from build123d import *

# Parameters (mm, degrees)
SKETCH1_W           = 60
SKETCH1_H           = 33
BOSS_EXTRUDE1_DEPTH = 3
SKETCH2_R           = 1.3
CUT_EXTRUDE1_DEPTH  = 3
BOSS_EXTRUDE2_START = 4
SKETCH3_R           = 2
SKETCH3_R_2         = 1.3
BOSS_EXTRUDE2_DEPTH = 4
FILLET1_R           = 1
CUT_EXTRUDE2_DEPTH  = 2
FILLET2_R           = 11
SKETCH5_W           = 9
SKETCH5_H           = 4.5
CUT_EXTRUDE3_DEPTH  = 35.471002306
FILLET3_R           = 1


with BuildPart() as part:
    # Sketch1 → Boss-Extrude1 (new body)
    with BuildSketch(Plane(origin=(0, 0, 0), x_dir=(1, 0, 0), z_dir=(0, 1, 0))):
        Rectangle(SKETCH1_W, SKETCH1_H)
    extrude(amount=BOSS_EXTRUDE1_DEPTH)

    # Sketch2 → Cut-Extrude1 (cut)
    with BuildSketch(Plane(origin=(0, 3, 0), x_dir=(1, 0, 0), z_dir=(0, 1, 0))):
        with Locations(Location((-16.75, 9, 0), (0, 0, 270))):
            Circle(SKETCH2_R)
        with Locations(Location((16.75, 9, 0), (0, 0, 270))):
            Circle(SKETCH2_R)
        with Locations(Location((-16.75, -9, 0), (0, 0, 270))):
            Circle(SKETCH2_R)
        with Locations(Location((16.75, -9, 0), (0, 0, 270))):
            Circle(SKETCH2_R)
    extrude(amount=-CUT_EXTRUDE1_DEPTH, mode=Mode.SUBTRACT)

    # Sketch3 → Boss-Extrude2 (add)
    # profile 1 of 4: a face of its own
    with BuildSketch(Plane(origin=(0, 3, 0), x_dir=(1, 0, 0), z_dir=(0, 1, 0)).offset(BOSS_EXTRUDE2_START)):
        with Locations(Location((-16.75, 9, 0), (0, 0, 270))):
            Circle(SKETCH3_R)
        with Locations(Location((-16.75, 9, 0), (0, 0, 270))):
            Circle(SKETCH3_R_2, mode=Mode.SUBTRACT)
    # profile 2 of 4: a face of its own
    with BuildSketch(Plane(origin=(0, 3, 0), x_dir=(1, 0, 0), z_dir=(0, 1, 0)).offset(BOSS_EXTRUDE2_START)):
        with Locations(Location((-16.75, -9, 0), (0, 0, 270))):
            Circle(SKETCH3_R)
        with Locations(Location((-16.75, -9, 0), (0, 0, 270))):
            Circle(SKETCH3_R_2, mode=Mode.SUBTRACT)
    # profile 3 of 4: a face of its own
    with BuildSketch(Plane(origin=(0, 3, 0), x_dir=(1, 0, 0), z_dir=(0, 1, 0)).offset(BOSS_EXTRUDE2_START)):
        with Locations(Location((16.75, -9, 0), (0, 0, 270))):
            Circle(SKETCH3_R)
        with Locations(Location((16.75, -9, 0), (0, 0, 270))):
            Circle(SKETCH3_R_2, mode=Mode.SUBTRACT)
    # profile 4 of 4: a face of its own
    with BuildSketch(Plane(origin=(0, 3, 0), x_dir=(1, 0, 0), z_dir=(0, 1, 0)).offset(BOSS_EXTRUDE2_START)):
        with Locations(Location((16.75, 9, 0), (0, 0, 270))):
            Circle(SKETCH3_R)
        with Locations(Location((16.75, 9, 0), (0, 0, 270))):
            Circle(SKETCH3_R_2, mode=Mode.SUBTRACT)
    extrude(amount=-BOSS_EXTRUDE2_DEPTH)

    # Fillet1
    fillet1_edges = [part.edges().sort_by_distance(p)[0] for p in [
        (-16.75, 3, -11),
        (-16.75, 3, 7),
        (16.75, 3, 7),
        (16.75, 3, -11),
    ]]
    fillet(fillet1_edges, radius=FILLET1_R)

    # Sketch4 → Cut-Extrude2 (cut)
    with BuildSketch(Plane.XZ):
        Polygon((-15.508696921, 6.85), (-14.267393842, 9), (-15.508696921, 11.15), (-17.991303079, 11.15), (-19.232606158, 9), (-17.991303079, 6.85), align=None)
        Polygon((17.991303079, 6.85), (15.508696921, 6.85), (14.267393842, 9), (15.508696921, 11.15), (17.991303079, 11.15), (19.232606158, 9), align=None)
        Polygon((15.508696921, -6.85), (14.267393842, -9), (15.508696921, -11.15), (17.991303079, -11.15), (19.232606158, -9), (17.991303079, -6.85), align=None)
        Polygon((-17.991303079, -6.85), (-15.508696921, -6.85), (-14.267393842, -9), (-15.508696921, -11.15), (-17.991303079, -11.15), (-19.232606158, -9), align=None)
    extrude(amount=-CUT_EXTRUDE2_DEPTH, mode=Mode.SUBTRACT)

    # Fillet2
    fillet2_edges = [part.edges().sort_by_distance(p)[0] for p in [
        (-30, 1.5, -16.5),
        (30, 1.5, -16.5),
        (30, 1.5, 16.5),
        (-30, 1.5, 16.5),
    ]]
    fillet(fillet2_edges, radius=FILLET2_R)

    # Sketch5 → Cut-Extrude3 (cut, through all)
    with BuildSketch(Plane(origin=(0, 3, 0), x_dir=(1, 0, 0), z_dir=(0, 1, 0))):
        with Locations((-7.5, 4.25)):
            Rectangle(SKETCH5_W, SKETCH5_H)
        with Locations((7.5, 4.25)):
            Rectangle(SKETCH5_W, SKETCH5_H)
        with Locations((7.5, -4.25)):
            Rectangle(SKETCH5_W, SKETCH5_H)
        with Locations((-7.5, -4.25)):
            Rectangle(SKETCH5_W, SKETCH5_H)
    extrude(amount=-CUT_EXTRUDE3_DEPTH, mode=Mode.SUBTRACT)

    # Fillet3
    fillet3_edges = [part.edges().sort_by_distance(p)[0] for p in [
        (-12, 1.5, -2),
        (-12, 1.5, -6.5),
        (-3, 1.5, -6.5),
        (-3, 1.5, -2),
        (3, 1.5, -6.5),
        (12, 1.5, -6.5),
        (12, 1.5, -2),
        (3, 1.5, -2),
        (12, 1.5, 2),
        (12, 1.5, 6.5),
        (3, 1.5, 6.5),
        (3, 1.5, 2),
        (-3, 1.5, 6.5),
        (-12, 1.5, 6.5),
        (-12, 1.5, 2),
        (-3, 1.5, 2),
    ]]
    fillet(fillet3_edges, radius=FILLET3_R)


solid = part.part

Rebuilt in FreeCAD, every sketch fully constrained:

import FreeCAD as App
import Part
import Sketcher

V = App.Vector
Q = App.Units.Quantity


def edges_at(feature, points):
    """Names of the edges that pass closest to the given points."""
    edges = feature.Shape.Edges
    near = lambda p: min(range(len(edges)), key=lambda i: edges[i].distToShape(Part.Vertex(*p))[0])
    return sorted({f"Edge{near(p) + 1}" for p in points})


def add_polygon(sketch, points):
    """Adds a closed chain of lines whose ends are joined by coincident constraints."""
    first, n = sketch.GeometryCount, len(points)
    for a, b in zip(points, points[1:] + points[:1]):
        sketch.addGeometry(Part.LineSegment(App.Vector(*a, 0), App.Vector(*b, 0)), False)
    for i in range(n):
        sketch.addConstraint(Sketcher.Constraint("Coincident", first + i, 2, first + (i + 1) % n, 1))

doc = App.newDocument("Part")
body = doc.addObject("PartDesign::Body", "Body")

sketch1 = body.newObject("Sketcher::SketchObject", "Sketch")
sketch1.AttachmentSupport = (doc.getObject("XZ_Plane"), [""])
sketch1.MapMode = "FlatFace"
add_polygon(sketch1, [(-30, -16), (-30, 16), (30, 16), (30, -16)])
sketch1.addConstraint([
    Sketcher.Constraint("Vertical", 0),
    Sketcher.Constraint("Horizontal", 1),
    Sketcher.Constraint("Vertical", 2),
    Sketcher.Constraint("Horizontal", 3),
    Sketcher.Constraint("Symmetric", 0, 2, 2, 2, -1, 1),
    Sketcher.Constraint("DistanceX", 1, 1, 1, 2, 60.0),
    Sketcher.Constraint("DistanceY", 0, 1, 0, 2, 33.0),
])
pad1 = body.newObject("PartDesign::Pad", "Pad")
pad1.Profile = sketch1
pad1.Length = 3
pad1.Reversed = True

sketch2 = body.newObject("Sketcher::SketchObject", "Sketch001")
sketch2.AttachmentSupport = (doc.getObject("XZ_Plane"), [""])
sketch2.MapMode = "FlatFace"
sketch2.AttachmentOffset = App.Placement(V(0, 0, -3), App.Rotation())
sketch2.addGeometry([
    Part.Circle(V(-16.8, -9, 0), V(0, 0, 1), 1.3),
    Part.Circle(V(16.8, -9, 0), V(0, 0, 1), 1.3),
    Part.Circle(V(-16.8, 9, 0), V(0, 0, 1), 1.3),
    Part.Circle(V(16.8, 9, 0), V(0, 0, 1), 1.3),
], False)
sketch2.addConstraint([
    Sketcher.Constraint("Equal", 0, 1),
    Sketcher.Constraint("Equal", 1, 2),
    Sketcher.Constraint("Equal", 2, 3),
    Sketcher.Constraint("Symmetric", 1, 3, 2, 3, -1, 1),
    Sketcher.Constraint("Symmetric", 0, 3, 3, 3, -1, 1),
    Sketcher.Constraint("Symmetric", 0, 3, 1, 3, -2),
    Sketcher.Constraint("Diameter", 0, 2.6),
    Sketcher.Constraint("DistanceY", 0, 3, -1, 1, 9.0),
    Sketcher.Constraint("DistanceX", 0, 3, 1, 3, 33.5),
])
pocket1 = body.newObject("PartDesign::Pocket", "Pocket")
pocket1.Profile = sketch2
pocket1.Length = 3
pocket1.Reversed = True

sketch3 = body.newObject("Sketcher::SketchObject", "Sketch002")
sketch3.AttachmentSupport = (doc.getObject("XZ_Plane"), [""])
sketch3.MapMode = "FlatFace"
sketch3.AttachmentOffset = App.Placement(V(0, 0, -7), App.Rotation())
sketch3.addGeometry([
    Part.Circle(V(-16.8, -9, 0), V(0, 0, 1), 2),
    Part.Circle(V(-16.8, -9, 0), V(0, 0, 1), 1.3),
    Part.Circle(V(-16.8, 9, 0), V(0, 0, 1), 2),
    Part.Circle(V(-16.8, 9, 0), V(0, 0, 1), 1.3),
    Part.Circle(V(16.8, 9, 0), V(0, 0, 1), 2),
    Part.Circle(V(16.8, 9, 0), V(0, 0, 1), 1.3),
    Part.Circle(V(16.8, -9, 0), V(0, 0, 1), 2),
    Part.Circle(V(16.8, -9, 0), V(0, 0, 1), 1.3),
], False)
sketch3.addConstraint([
    Sketcher.Constraint("Coincident", 1, 3, 0, 3),
    Sketcher.Constraint("Coincident", 3, 3, 2, 3),
    Sketcher.Constraint("Coincident", 5, 3, 4, 3),
    Sketcher.Constraint("Coincident", 7, 3, 6, 3),
    Sketcher.Constraint("Equal", 0, 2),
    Sketcher.Constraint("Equal", 1, 3),
    Sketcher.Constraint("Equal", 2, 4),
    Sketcher.Constraint("Equal", 3, 5),
    Sketcher.Constraint("Equal", 4, 6),
    Sketcher.Constraint("Equal", 5, 7),
    Sketcher.Constraint("Symmetric", 0, 3, 4, 3, -1, 1),
    Sketcher.Constraint("Symmetric", 2, 3, 6, 3, -1, 1),
    Sketcher.Constraint("Symmetric", 2, 3, 4, 3, -2),
    Sketcher.Constraint("Diameter", 0, 4.0),
    Sketcher.Constraint("Diameter", 1, 2.6),
    Sketcher.Constraint("DistanceY", 0, 3, -1, 1, 9.0),
    Sketcher.Constraint("DistanceX", 2, 3, 4, 3, 33.5),
])
pad2 = body.newObject("PartDesign::Pad", "Pad001")
pad2.Profile = sketch3
pad2.Length = 4
doc.recompute()

fillet = body.newObject("PartDesign::Fillet", "Fillet")
fillet.Base = (pad2, edges_at(pad2, [
    (-16.75, 3, -11),
    (-16.75, 3, 7),
    (16.75, 3, 7),
    (16.75, 3, -11),
]))
fillet.Radius = 1

sketch4 = body.newObject("Sketcher::SketchObject", "Sketch003")
sketch4.AttachmentSupport = (doc.getObject("XZ_Plane"), [""])
sketch4.MapMode = "FlatFace"
add_polygon(sketch4, [(-15.5, 6.8), (-14.3, 9), (-15.5, 11.2), (-18, 11.2), (-19.2, 9), (-18, 6.8)])
add_polygon(sketch4, [(15.5, 6.8), (18, 6.8), (19.2, 9), (18, 11.2), (15.5, 11.2), (14.3, 9)])
add_polygon(sketch4, [(15.5, -6.8), (14.3, -9), (15.5, -11.2), (18, -11.2), (19.2, -9), (18, -6.8)])
add_polygon(sketch4, [(-15.5, -6.8), (-18, -6.8), (-19.2, -9), (-18, -11.2), (-15.5, -11.2), (-14.3, -9)])
sketch4.addConstraint([
    Sketcher.Constraint("Horizontal", 2),
    Sketcher.Constraint("Horizontal", 5),
    Sketcher.Constraint("Horizontal", 6),
    Sketcher.Constraint("Horizontal", 9),
    Sketcher.Constraint("Horizontal", 14),
    Sketcher.Constraint("Horizontal", 17),
    Sketcher.Constraint("Horizontal", 18),
    Sketcher.Constraint("Horizontal", 21),
    Sketcher.Constraint("Symmetric", 0, 2, 12, 2, -1, 1),
    Sketcher.Constraint("Symmetric", 1, 2, 13, 2, -1, 1),
    Sketcher.Constraint("Symmetric", 3, 2, 15, 2, -1, 1),
    Sketcher.Constraint("Symmetric", 4, 2, 16, 2, -1, 1),
    Sketcher.Constraint("Symmetric", 6, 2, 18, 2, -1, 1),
    Sketcher.Constraint("Symmetric", 7, 2, 19, 2, -1, 1),
    Sketcher.Constraint("Symmetric", 8, 2, 20, 2, -1, 1),
    Sketcher.Constraint("Symmetric", 10, 2, 22, 2, -1, 1),
    Sketcher.Constraint("Symmetric", 4, 2, 6, 2, -2),
    Sketcher.Constraint("Symmetric", 3, 2, 7, 2, -2),
    Sketcher.Constraint("Symmetric", 2, 2, 8, 2, -2),
    Sketcher.Constraint("Symmetric", 0, 2, 10, 2, -2),
    Sketcher.Constraint("Parallel", 0, 3),
    Sketcher.Constraint("Parallel", 1, 4),
    Sketcher.Constraint("Parallel", 3, 7),
    Sketcher.Constraint("Parallel", 7, 10),
    Sketcher.Constraint("Parallel", 8, 11),
    Sketcher.Constraint("Parallel", 10, 12),
    Sketcher.Constraint("Parallel", 12, 15),
    Sketcher.Constraint("Parallel", 19, 22),
    Sketcher.Constraint("Parallel", 20, 23),
    Sketcher.Constraint("Horizontal", 0, 2, 3, 2),
    Sketcher.Constraint("Vertical", 2, 2, 4, 2),
    Sketcher.Constraint("Angle", 0, Q("60 deg")),
    Sketcher.Constraint("DistanceY", -1, 1, 0, 2, 9.0),
    Sketcher.Constraint("DistanceY", 4, 2, 2, 2, 4.3),
    Sketcher.Constraint("DistanceX", 5, 2, 6, 2, 33.5),
    Sketcher.Constraint("DistanceX", 2, 2, 2, 1, 2.482606),
])
pocket2 = body.newObject("PartDesign::Pocket", "Pocket001")
pocket2.Profile = sketch4
pocket2.Length = 2
doc.recompute()

fillet2 = body.newObject("PartDesign::Fillet", "Fillet001")
fillet2.Base = (pocket2, edges_at(pocket2, [
    (-30, 1.5, -16.5),
    (30, 1.5, -16.5),
    (30, 1.5, 16.5),
    (-30, 1.5, 16.5),
]))
fillet2.Radius = 11

sketch5 = body.newObject("Sketcher::SketchObject", "Sketch004")
sketch5.AttachmentSupport = (doc.getObject("XZ_Plane"), [""])
sketch5.MapMode = "FlatFace"
sketch5.AttachmentOffset = App.Placement(V(0, 0, -3), App.Rotation())
add_polygon(sketch5, [(-12, -6.5), (-12, -2), (-3, -2), (-3, -6.5)])
add_polygon(sketch5, [(3, -6.5), (3, -2), (12, -2), (12, -6.5)])
add_polygon(sketch5, [(3, 2), (3, 6.5), (12, 6.5), (12, 2)])
add_polygon(sketch5, [(-12, 2), (-12, 6.5), (-3, 6.5), (-3, 2)])
sketch5.addConstraint([
    Sketcher.Constraint("Vertical", 0),
    Sketcher.Constraint("Horizontal", 1),
    Sketcher.Constraint("Vertical", 2),
    Sketcher.Constraint("Horizontal", 3),
    Sketcher.Constraint("Vertical", 4),
    Sketcher.Constraint("Horizontal", 5),
    Sketcher.Constraint("Vertical", 6),
    Sketcher.Constraint("Horizontal", 7),
    Sketcher.Constraint("Vertical", 8),
    Sketcher.Constraint("Horizontal", 9),
    Sketcher.Constraint("Vertical", 10),
    Sketcher.Constraint("Horizontal", 11),
    Sketcher.Constraint("Vertical", 12),
    Sketcher.Constraint("Horizontal", 13),
    Sketcher.Constraint("Vertical", 14),
    Sketcher.Constraint("Horizontal", 15),
    Sketcher.Constraint("Symmetric", 2, 2, 8, 2, -1, 1),
    Sketcher.Constraint("Symmetric", 0, 2, 10, 2, -1, 1),
    Sketcher.Constraint("Symmetric", 6, 2, 12, 2, -1, 1),
    Sketcher.Constraint("Symmetric", 4, 2, 14, 2, -1, 1),
    Sketcher.Constraint("Symmetric", 1, 2, 4, 2, -2),
    Sketcher.Constraint("Symmetric", 3, 2, 6, 2, -2),
    Sketcher.Constraint("DistanceX", 1, 1, 1, 2, 9.0),
    Sketcher.Constraint("DistanceY", 0, 1, 0, 2, 4.5),
    Sketcher.Constraint("DistanceX", 0, 2, -1, 1, 12.0),
    Sketcher.Constraint("DistanceY", 0, 2, -1, 1, 2.0),
])
pocket3 = body.newObject("PartDesign::Pocket", "Pocket002")
pocket3.Profile = sketch5
pocket3.Type = "ThroughAll"
pocket3.Reversed = True
doc.recompute()

fillet3 = body.newObject("PartDesign::Fillet", "Fillet002")
fillet3.Base = (pocket3, edges_at(pocket3, [
    (-12, 1.5, -2),
    (-12, 1.5, -6.5),
    (-3, 1.5, -6.5),
    (-3, 1.5, -2),
    (3, 1.5, -6.5),
    (12, 1.5, -6.5),
    (12, 1.5, -2),
    (3, 1.5, -2),
    (12, 1.5, 2),
    (12, 1.5, 6.5),
    (3, 1.5, 6.5),
    (3, 1.5, 2),
    (-3, 1.5, 6.5),
    (-12, 1.5, 6.5),
    (-12, 1.5, 2),
    (-3, 1.5, 2),
]))
fillet3.Radius = 1

doc.recompute()
